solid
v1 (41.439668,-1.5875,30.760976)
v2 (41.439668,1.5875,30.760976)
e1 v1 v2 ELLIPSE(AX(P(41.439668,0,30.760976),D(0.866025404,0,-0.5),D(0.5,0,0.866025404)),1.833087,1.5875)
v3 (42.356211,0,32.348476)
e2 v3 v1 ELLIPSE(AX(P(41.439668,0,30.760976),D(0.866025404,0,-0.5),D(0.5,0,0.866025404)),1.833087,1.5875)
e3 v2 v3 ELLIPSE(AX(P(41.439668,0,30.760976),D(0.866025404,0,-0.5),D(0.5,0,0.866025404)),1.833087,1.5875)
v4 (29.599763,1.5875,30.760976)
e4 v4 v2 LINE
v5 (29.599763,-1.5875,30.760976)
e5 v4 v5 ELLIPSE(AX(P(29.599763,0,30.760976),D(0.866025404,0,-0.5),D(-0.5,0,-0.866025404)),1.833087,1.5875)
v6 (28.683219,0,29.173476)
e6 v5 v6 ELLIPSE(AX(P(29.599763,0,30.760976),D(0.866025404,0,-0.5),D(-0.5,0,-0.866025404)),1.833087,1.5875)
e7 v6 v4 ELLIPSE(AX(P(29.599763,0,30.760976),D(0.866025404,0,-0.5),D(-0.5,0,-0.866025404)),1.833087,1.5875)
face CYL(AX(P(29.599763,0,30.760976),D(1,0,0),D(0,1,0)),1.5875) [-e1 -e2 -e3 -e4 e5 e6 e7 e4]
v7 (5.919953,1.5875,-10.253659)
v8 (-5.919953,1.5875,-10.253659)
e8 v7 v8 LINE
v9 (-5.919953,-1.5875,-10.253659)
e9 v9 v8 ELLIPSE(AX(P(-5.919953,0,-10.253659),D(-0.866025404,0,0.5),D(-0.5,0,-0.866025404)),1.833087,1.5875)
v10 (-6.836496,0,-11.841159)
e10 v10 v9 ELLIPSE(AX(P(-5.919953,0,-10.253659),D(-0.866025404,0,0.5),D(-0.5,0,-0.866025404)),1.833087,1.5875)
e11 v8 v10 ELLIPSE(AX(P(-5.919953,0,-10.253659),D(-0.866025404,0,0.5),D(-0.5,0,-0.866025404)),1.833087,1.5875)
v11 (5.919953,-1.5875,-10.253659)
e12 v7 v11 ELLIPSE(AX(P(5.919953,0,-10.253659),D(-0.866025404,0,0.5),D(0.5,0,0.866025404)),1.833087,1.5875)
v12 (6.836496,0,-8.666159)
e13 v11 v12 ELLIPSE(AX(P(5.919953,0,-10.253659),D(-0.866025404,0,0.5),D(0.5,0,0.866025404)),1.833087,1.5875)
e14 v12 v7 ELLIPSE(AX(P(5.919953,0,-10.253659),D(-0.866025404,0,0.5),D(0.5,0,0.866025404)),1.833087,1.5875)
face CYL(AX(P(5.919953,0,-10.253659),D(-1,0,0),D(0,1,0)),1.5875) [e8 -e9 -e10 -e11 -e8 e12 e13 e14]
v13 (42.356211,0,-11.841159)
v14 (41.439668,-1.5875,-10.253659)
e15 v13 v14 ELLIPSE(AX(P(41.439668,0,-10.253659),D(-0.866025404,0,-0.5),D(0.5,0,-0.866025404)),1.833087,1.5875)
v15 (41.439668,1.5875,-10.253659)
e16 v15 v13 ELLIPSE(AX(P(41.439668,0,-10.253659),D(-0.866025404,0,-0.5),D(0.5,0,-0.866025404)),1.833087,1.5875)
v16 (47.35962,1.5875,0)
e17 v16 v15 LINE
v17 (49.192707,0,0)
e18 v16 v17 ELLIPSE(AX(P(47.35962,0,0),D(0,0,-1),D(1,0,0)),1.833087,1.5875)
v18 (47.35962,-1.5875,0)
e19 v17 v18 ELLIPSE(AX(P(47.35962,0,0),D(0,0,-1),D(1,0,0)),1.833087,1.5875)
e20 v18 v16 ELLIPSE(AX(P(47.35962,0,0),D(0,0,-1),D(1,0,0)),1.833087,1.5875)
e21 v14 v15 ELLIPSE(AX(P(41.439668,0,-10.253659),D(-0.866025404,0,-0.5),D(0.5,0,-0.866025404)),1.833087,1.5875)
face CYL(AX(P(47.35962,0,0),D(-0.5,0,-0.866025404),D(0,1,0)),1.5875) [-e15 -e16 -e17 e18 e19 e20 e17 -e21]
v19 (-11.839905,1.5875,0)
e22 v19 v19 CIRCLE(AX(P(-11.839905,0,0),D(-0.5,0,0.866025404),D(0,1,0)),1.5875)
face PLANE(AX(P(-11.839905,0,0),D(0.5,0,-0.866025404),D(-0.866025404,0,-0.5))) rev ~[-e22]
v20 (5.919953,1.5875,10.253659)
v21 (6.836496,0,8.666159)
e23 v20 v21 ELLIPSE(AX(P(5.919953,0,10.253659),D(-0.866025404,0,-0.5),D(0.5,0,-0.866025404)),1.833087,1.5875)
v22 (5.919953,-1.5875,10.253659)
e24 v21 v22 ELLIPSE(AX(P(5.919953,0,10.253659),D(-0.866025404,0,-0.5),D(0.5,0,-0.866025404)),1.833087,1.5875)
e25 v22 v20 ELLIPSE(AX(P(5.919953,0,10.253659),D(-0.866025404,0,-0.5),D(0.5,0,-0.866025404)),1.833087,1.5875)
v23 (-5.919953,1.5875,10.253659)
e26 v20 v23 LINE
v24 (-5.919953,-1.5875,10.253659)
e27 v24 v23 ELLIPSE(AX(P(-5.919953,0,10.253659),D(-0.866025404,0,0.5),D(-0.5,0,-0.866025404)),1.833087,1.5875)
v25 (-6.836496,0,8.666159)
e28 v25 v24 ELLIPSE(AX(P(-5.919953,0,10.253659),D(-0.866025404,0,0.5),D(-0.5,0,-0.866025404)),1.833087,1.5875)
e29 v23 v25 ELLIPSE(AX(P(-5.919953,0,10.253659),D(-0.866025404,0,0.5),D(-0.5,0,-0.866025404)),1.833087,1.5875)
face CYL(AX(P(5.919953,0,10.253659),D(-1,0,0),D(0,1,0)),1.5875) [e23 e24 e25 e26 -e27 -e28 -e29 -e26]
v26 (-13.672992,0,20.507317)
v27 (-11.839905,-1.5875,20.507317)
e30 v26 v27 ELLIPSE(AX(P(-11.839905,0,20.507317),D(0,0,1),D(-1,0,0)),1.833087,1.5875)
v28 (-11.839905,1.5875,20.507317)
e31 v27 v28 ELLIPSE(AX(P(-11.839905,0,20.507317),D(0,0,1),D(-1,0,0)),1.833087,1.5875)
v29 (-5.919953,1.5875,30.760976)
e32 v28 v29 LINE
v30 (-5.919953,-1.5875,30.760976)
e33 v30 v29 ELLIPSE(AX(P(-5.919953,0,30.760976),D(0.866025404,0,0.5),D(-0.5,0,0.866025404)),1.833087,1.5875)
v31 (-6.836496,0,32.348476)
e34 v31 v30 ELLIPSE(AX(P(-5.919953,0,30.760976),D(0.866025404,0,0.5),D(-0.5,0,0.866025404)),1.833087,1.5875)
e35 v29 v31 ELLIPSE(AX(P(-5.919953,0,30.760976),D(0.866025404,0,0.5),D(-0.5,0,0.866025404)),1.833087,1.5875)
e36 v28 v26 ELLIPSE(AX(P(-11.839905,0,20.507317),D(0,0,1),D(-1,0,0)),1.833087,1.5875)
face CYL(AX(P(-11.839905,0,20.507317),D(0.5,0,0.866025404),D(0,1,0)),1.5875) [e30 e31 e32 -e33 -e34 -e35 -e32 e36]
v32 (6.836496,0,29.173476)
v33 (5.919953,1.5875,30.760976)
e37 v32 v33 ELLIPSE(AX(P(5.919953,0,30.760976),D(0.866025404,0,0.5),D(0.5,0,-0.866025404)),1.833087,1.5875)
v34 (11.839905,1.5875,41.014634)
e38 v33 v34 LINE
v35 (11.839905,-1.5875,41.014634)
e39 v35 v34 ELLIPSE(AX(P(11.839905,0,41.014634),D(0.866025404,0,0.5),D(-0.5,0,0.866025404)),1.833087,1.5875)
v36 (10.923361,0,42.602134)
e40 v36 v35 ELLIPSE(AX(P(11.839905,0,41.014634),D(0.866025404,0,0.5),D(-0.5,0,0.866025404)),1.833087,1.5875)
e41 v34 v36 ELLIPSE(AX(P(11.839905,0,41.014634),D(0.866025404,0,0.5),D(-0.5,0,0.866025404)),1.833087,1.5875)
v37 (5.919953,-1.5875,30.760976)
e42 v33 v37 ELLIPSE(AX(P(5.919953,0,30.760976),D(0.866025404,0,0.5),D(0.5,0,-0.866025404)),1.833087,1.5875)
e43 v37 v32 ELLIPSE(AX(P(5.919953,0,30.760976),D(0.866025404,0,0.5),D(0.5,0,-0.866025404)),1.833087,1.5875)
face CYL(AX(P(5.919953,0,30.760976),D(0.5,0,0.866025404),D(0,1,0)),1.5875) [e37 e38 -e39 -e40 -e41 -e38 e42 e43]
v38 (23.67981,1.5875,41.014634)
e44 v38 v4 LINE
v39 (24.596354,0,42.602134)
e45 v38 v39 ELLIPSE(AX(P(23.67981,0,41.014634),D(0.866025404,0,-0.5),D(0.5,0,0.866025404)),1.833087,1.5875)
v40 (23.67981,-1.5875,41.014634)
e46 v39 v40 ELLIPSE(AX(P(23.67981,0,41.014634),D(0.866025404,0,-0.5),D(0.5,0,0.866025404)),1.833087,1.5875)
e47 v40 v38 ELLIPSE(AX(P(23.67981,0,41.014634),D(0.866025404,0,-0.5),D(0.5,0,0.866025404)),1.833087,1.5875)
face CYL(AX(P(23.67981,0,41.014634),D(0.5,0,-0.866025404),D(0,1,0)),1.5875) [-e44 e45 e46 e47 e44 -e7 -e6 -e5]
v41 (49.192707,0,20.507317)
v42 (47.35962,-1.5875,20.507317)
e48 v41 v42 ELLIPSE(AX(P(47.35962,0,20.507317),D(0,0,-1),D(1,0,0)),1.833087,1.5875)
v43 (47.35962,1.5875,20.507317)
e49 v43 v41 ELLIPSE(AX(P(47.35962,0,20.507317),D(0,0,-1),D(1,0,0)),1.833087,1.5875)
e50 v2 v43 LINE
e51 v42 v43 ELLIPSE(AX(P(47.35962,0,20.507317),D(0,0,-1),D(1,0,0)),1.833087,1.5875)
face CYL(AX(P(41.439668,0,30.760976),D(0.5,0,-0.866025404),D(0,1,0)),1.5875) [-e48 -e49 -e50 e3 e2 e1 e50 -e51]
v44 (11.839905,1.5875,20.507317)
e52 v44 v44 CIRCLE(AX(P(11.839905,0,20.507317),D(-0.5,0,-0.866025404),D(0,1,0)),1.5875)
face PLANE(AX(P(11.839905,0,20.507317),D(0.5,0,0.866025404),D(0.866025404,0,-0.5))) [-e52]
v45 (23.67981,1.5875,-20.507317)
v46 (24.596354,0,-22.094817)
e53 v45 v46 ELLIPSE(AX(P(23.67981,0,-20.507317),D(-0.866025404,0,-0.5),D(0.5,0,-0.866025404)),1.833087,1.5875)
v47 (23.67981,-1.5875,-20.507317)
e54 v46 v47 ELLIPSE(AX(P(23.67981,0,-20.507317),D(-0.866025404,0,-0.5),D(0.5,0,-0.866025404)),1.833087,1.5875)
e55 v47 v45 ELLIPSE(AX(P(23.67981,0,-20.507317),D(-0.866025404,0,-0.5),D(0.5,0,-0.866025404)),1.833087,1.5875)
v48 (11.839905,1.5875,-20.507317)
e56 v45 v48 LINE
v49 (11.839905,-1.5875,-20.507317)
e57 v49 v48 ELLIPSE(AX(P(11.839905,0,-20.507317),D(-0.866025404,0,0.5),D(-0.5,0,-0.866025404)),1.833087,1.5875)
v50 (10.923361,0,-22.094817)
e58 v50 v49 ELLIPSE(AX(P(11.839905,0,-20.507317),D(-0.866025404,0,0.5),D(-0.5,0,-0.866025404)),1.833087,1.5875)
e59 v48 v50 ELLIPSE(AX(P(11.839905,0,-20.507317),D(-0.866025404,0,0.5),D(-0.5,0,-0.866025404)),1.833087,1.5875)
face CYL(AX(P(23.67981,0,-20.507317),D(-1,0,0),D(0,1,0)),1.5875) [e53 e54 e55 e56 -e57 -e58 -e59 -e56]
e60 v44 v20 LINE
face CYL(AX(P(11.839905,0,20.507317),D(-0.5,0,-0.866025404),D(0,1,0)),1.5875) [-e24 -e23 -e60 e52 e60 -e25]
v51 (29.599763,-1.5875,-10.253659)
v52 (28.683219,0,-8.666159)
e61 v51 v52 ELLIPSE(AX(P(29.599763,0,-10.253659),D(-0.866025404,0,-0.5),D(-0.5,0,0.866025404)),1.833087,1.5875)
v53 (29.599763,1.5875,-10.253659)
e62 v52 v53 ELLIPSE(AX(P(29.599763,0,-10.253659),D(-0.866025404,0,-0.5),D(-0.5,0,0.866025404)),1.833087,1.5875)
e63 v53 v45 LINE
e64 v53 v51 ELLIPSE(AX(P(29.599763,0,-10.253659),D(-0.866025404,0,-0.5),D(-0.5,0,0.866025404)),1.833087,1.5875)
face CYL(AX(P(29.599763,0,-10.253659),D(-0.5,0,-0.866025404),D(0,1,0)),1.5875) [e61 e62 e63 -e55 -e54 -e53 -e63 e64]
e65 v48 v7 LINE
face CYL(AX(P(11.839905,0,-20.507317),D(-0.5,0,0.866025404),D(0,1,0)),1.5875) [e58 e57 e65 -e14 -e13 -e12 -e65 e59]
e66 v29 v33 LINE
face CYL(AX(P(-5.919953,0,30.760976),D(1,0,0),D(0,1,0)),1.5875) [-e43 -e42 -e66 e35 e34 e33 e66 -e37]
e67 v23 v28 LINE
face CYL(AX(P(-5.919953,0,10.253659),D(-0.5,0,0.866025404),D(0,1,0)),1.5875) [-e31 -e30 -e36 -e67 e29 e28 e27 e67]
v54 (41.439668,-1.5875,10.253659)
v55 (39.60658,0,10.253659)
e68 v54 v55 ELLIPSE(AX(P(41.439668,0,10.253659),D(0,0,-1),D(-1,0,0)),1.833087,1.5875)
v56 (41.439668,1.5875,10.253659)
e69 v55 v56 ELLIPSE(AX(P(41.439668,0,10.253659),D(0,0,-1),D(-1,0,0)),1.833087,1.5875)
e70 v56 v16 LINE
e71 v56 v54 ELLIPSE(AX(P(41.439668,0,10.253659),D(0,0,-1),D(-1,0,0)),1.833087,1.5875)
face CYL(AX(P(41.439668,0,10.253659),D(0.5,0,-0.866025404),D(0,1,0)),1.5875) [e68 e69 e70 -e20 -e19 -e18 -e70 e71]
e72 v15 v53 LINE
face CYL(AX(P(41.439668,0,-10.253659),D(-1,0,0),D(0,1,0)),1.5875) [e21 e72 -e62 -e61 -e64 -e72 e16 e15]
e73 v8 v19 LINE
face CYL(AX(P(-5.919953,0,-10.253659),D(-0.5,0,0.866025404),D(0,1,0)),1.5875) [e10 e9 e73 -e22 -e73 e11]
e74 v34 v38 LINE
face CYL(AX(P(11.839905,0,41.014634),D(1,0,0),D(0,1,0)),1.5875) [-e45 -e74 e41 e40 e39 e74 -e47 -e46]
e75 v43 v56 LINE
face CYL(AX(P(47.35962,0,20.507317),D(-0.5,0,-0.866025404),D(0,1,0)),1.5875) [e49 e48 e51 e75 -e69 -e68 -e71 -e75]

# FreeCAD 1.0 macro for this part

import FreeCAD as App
import Part
import Sketcher
from FreeCAD import Vector
Q = App.Units.Quantity

doc = App.newDocument("Part")
body = doc.addObject("PartDesign::Body", "Body")

# Sketch on YZ plane
sketch1 = body.newObject("Sketcher::SketchObject", "Sketch")
sketch1.AttachmentSupport = (doc.getObject("YZ_Plane"), [""])
sketch1.MapMode = "FlatFace"
sketch1.addGeometry(Part.Circle(Vector(0, 10.3, 0), Vector(0, 0, 1), 1.6), False)
sketch1.addConstraint([
    Sketcher.Constraint("PointOnObject", 0, 3, -2),
    Sketcher.Constraint("Diameter", 0, Q("0.125 in")),
    Sketcher.Constraint("DistanceY", -1, 1, 0, 3, 10.253659),
])

# Sketch on XZ plane
sketch2 = body.newObject("Sketcher::SketchObject", "Sketch001")
sketch2.AttachmentSupport = (doc.getObject("XZ_Plane"), [""])
sketch2.MapMode = "FlatFace"
sketch2.addGeometry([
    Part.LineSegment(Vector(12, 21, 0), Vector(6, 10, 0)),  # 0
    Part.LineSegment(Vector(6, 10, 0), Vector(-6, 10, 0)),  # 1
    Part.LineSegment(Vector(-6, 10, 0), Vector(-12, 21, 0)),  # 2
    Part.LineSegment(Vector(-12, 21, 0), Vector(-6, 31, 0)),  # 3
    Part.LineSegment(Vector(-6, 31, 0), Vector(6, 31, 0)),  # 4
    Part.LineSegment(Vector(6, 31, 0), Vector(12, 41, 0)),  # 5
    Part.LineSegment(Vector(12, 41, 0), Vector(24, 41, 0)),  # 6
    Part.LineSegment(Vector(24, 41, 0), Vector(30, 31, 0)),  # 7
    Part.LineSegment(Vector(30, 31, 0), Vector(41, 31, 0)),  # 8
    Part.LineSegment(Vector(41, 31, 0), Vector(47, 21, 0)),  # 9
    Part.LineSegment(Vector(47, 21, 0), Vector(41, 10, 0)),  # 10
    Part.LineSegment(Vector(41, 10, 0), Vector(47, 0, 0)),  # 11
    Part.LineSegment(Vector(47, 0, 0), Vector(41, -10, 0)),  # 12
    Part.LineSegment(Vector(41, -10, 0), Vector(30, -10, 0)),  # 13
    Part.LineSegment(Vector(30, -10, 0), Vector(24, -21, 0)),  # 14
    Part.LineSegment(Vector(24, -21, 0), Vector(12, -21, 0)),  # 15
    Part.LineSegment(Vector(12, -21, 0), Vector(6, -10, 0)),  # 16
    Part.LineSegment(Vector(6, -10, 0), Vector(-6, -10, 0)),  # 17
    Part.LineSegment(Vector(-6, -10, 0), Vector(-12, 0, 0)),  # 18
], False)
sketch2.addConstraint([
    Sketcher.Constraint("Coincident", 0, 2, 1, 1),
    Sketcher.Constraint("Coincident", 1, 2, 2, 1),
    Sketcher.Constraint("Coincident", 2, 2, 3, 1),
    Sketcher.Constraint("Coincident", 3, 2, 4, 1),
    Sketcher.Constraint("Coincident", 4, 2, 5, 1),
    Sketcher.Constraint("Coincident", 5, 2, 6, 1),
    Sketcher.Constraint("Coincident", 6, 2, 7, 1),
    Sketcher.Constraint("Coincident", 7, 2, 8, 1),
    Sketcher.Constraint("Coincident", 8, 2, 9, 1),
    Sketcher.Constraint("Coincident", 9, 2, 10, 1),
    Sketcher.Constraint("Coincident", 10, 2, 11, 1),
    Sketcher.Constraint("Coincident", 11, 2, 12, 1),
    Sketcher.Constraint("Coincident", 12, 2, 13, 1),
    Sketcher.Constraint("Coincident", 13, 2, 14, 1),
    Sketcher.Constraint("Coincident", 14, 2, 15, 1),
    Sketcher.Constraint("Coincident", 15, 2, 16, 1),
    Sketcher.Constraint("Coincident", 16, 2, 17, 1),
    Sketcher.Constraint("Coincident", 17, 2, 18, 1),
    Sketcher.Constraint("Horizontal", 1),
    Sketcher.Constraint("Horizontal", 4),
    Sketcher.Constraint("Horizontal", 6),
    Sketcher.Constraint("Horizontal", 8),
    Sketcher.Constraint("Horizontal", 13),
    Sketcher.Constraint("Horizontal", 15),
    Sketcher.Constraint("Horizontal", 17),
    Sketcher.Constraint("Symmetric", 2, 2, 15, 2, -1, 1),
    Sketcher.Constraint("Symmetric", 1, 2, 16, 2, -1, 1),
    Sketcher.Constraint("Symmetric", 0, 1, 2, 2, -2),
    Sketcher.Constraint("Symmetric", 10, 2, 12, 2, -1),
    Sketcher.Constraint("PointOnObject", 11, 2, -1),
    Sketcher.Constraint("PointOnObject", 18, 2, -1),
    Sketcher.Constraint("Parallel", 0, 3),
    Sketcher.Constraint("Parallel", 3, 5),
    Sketcher.Constraint("Parallel", 2, 7),
    Sketcher.Constraint("Parallel", 7, 9),
    Sketcher.Constraint("Parallel", 5, 10),
    Sketcher.Constraint("Parallel", 9, 11),
    Sketcher.Constraint("Parallel", 10, 12),
    Sketcher.Constraint("Parallel", 12, 14),
    Sketcher.Constraint("Parallel", 16, 18),
    Sketcher.Constraint("Horizontal", 4, 2, 7, 2),
    Sketcher.Constraint("Horizontal", 2, 2, 9, 2),
    Sketcher.Constraint("Horizontal", 1, 2, 10, 2),
    Sketcher.Constraint("Vertical", 1, 2, 3, 2),
    Sketcher.Constraint("Vertical", 0, 2, 4, 2),
    Sketcher.Constraint("Vertical", 0, 1, 5, 2),
    Sketcher.Constraint("Vertical", 9, 2, 11, 2),
    Sketcher.Constraint("Vertical", 7, 2, 13, 2),
    Sketcher.Constraint("Vertical", 3, 2, 17, 2),
    Sketcher.Constraint("Equal", 4, 6),
    Sketcher.Constraint("Equal", 6, 8),
    Sketcher.Constraint("Angle", 0, Q("-120 deg")),
    Sketcher.Constraint("DistanceX", 1, 2, 1, 1, 11.839905),
    Sketcher.Constraint("DistanceY", -1, 1, 0, 2, 10.253659),
])
doc.recompute()

additivepipe = body.newObject("PartDesign::AdditivePipe", "AdditivePipe")
additivepipe.Profile = sketch1
additivepipe.Spine = (sketch2, ["Edge1", "Edge2", "Edge3", "Edge4", "Edge5", "Edge6", "Edge7", "Edge8", "Edge9", "Edge10", "Edge11", "Edge12", "Edge13", "Edge14", "Edge15", "Edge16", "Edge17", "Edge18", "Edge19"])
additivepipe.Transition = "Right corner"

doc.recompute()
